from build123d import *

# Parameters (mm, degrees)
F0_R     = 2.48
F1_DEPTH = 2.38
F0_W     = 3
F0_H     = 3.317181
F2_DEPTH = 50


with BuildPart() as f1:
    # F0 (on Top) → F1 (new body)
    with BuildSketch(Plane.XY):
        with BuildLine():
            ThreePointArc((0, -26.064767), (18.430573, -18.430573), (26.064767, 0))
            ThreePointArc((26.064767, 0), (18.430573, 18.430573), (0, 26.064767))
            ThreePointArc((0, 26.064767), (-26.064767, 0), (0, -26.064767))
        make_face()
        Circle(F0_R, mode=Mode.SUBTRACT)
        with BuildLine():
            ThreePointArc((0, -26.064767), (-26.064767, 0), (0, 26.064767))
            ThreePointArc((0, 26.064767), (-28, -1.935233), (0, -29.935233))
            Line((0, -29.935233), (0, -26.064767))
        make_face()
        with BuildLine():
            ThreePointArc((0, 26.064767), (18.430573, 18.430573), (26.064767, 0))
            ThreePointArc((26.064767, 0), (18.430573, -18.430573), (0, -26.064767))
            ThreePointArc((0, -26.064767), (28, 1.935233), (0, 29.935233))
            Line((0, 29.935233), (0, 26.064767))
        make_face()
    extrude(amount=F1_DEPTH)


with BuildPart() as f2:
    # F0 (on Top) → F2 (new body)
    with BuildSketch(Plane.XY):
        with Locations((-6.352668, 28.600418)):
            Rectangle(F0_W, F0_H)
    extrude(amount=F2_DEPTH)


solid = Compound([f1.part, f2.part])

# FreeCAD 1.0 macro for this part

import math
import FreeCAD as App
import Part
import Sketcher


def add_polygon(sketch, points):
    """Adds a closed chain of lines whose ends are joined by coincident constraints."""
    first, n = sketch.GeometryCount, len(points)
    for a, b in zip(points, points[1:] + points[:1]):
        sketch.addGeometry(Part.LineSegment(App.Vector(*a, 0), App.Vector(*b, 0)), False)
    for i in range(n):
        sketch.addConstraint(Sketcher.Constraint("Coincident", first + i, 2, first + (i + 1) % n, 1))

doc = App.newDocument("Part")
body = doc.addObject("PartDesign::Body", "Body")

sketch1 = body.newObject("Sketcher::SketchObject", "Sketch")
sketch1.AttachmentSupport = (doc.getObject("XY_Plane"), [""])
sketch1.MapMode = "FlatFace"
sketch1.addGeometry([
    Part.ArcOfCircle(Part.Circle(App.Vector(0, -1.935233, 0), App.Vector(0, 0, 1), 28), math.radians(90), math.radians(270)),
    Part.LineSegment(App.Vector(0, -29.935233, 0), App.Vector(0, -26.064767, 0)),
    Part.ArcOfCircle(Part.Circle(App.Vector(0, 1.935233, 0), App.Vector(0, 0, 1), 28), math.radians(-90), math.radians(90)),
    Part.LineSegment(App.Vector(0, 29.935233, 0), App.Vector(0, 26.064767, 0)),
    Part.Circle(App.Vector(0, 0, 0), App.Vector(0, 0, 1), 2.48),
], False)
sketch1.addConstraint([
    Sketcher.Constraint("Coincident", 0, 2, 1, 1),
    Sketcher.Constraint("Coincident", 1, 2, 2, 1),
    Sketcher.Constraint("Coincident", 2, 2, 3, 1),
    Sketcher.Constraint("Coincident", 3, 2, 0, 1),
    Sketcher.Constraint("Vertical", 1),
    Sketcher.Constraint("Vertical", 3),
    Sketcher.Constraint("Coincident", 4, 3, -1, 1),
    Sketcher.Constraint("Equal", 0, 2),
    Sketcher.Constraint("Symmetric", 0, 3, 2, 3, -1, 1),
    Sketcher.Constraint("PointOnObject", 0, 3, -2),
    Sketcher.Constraint("PointOnObject", 0, 2, -2),
    Sketcher.Constraint("PointOnObject", 2, 2, -2),
    Sketcher.Constraint("Radius", 0, 28.0),
    Sketcher.Constraint("Diameter", 4, 4.96),
    Sketcher.Constraint("DistanceY", 1, 1, 1, 2, 3.870466),
])
pad1 = body.newObject("PartDesign::Pad", "Pad")
pad1.Profile = sketch1
pad1.Length = 2.38
body2 = doc.addObject("PartDesign::Body", "Body001")

sketch2 = body2.newObject("Sketcher::SketchObject", "Sketch001")
sketch2.AttachmentSupport = (doc.getObject("XY_Plane001"), [""])
sketch2.MapMode = "FlatFace"
add_polygon(sketch2, [(-7.852668, 30.259009), (-7.852668, 26.941827), (-4.852668, 26.941827), (-4.852668, 30.259009)])
sketch2.addConstraint([
    Sketcher.Constraint("Vertical", 0),
    Sketcher.Constraint("Horizontal", 1),
    Sketcher.Constraint("Vertical", 2),
    Sketcher.Constraint("Horizontal", 3),
    Sketcher.Constraint("DistanceX", 1, 1, 1, 2, 3.0),
    Sketcher.Constraint("DistanceY", 0, 2, 0, 1, 3.317181),
    Sketcher.Constraint("DistanceX", 0, 2, -1, 1, 7.852668),
    Sketcher.Constraint("DistanceY", -1, 1, 2, 2, 30.259009),
])
pad2 = body2.newObject("PartDesign::Pad", "Pad001")
pad2.Profile = sketch2
pad2.Length = 50

doc.recompute()
